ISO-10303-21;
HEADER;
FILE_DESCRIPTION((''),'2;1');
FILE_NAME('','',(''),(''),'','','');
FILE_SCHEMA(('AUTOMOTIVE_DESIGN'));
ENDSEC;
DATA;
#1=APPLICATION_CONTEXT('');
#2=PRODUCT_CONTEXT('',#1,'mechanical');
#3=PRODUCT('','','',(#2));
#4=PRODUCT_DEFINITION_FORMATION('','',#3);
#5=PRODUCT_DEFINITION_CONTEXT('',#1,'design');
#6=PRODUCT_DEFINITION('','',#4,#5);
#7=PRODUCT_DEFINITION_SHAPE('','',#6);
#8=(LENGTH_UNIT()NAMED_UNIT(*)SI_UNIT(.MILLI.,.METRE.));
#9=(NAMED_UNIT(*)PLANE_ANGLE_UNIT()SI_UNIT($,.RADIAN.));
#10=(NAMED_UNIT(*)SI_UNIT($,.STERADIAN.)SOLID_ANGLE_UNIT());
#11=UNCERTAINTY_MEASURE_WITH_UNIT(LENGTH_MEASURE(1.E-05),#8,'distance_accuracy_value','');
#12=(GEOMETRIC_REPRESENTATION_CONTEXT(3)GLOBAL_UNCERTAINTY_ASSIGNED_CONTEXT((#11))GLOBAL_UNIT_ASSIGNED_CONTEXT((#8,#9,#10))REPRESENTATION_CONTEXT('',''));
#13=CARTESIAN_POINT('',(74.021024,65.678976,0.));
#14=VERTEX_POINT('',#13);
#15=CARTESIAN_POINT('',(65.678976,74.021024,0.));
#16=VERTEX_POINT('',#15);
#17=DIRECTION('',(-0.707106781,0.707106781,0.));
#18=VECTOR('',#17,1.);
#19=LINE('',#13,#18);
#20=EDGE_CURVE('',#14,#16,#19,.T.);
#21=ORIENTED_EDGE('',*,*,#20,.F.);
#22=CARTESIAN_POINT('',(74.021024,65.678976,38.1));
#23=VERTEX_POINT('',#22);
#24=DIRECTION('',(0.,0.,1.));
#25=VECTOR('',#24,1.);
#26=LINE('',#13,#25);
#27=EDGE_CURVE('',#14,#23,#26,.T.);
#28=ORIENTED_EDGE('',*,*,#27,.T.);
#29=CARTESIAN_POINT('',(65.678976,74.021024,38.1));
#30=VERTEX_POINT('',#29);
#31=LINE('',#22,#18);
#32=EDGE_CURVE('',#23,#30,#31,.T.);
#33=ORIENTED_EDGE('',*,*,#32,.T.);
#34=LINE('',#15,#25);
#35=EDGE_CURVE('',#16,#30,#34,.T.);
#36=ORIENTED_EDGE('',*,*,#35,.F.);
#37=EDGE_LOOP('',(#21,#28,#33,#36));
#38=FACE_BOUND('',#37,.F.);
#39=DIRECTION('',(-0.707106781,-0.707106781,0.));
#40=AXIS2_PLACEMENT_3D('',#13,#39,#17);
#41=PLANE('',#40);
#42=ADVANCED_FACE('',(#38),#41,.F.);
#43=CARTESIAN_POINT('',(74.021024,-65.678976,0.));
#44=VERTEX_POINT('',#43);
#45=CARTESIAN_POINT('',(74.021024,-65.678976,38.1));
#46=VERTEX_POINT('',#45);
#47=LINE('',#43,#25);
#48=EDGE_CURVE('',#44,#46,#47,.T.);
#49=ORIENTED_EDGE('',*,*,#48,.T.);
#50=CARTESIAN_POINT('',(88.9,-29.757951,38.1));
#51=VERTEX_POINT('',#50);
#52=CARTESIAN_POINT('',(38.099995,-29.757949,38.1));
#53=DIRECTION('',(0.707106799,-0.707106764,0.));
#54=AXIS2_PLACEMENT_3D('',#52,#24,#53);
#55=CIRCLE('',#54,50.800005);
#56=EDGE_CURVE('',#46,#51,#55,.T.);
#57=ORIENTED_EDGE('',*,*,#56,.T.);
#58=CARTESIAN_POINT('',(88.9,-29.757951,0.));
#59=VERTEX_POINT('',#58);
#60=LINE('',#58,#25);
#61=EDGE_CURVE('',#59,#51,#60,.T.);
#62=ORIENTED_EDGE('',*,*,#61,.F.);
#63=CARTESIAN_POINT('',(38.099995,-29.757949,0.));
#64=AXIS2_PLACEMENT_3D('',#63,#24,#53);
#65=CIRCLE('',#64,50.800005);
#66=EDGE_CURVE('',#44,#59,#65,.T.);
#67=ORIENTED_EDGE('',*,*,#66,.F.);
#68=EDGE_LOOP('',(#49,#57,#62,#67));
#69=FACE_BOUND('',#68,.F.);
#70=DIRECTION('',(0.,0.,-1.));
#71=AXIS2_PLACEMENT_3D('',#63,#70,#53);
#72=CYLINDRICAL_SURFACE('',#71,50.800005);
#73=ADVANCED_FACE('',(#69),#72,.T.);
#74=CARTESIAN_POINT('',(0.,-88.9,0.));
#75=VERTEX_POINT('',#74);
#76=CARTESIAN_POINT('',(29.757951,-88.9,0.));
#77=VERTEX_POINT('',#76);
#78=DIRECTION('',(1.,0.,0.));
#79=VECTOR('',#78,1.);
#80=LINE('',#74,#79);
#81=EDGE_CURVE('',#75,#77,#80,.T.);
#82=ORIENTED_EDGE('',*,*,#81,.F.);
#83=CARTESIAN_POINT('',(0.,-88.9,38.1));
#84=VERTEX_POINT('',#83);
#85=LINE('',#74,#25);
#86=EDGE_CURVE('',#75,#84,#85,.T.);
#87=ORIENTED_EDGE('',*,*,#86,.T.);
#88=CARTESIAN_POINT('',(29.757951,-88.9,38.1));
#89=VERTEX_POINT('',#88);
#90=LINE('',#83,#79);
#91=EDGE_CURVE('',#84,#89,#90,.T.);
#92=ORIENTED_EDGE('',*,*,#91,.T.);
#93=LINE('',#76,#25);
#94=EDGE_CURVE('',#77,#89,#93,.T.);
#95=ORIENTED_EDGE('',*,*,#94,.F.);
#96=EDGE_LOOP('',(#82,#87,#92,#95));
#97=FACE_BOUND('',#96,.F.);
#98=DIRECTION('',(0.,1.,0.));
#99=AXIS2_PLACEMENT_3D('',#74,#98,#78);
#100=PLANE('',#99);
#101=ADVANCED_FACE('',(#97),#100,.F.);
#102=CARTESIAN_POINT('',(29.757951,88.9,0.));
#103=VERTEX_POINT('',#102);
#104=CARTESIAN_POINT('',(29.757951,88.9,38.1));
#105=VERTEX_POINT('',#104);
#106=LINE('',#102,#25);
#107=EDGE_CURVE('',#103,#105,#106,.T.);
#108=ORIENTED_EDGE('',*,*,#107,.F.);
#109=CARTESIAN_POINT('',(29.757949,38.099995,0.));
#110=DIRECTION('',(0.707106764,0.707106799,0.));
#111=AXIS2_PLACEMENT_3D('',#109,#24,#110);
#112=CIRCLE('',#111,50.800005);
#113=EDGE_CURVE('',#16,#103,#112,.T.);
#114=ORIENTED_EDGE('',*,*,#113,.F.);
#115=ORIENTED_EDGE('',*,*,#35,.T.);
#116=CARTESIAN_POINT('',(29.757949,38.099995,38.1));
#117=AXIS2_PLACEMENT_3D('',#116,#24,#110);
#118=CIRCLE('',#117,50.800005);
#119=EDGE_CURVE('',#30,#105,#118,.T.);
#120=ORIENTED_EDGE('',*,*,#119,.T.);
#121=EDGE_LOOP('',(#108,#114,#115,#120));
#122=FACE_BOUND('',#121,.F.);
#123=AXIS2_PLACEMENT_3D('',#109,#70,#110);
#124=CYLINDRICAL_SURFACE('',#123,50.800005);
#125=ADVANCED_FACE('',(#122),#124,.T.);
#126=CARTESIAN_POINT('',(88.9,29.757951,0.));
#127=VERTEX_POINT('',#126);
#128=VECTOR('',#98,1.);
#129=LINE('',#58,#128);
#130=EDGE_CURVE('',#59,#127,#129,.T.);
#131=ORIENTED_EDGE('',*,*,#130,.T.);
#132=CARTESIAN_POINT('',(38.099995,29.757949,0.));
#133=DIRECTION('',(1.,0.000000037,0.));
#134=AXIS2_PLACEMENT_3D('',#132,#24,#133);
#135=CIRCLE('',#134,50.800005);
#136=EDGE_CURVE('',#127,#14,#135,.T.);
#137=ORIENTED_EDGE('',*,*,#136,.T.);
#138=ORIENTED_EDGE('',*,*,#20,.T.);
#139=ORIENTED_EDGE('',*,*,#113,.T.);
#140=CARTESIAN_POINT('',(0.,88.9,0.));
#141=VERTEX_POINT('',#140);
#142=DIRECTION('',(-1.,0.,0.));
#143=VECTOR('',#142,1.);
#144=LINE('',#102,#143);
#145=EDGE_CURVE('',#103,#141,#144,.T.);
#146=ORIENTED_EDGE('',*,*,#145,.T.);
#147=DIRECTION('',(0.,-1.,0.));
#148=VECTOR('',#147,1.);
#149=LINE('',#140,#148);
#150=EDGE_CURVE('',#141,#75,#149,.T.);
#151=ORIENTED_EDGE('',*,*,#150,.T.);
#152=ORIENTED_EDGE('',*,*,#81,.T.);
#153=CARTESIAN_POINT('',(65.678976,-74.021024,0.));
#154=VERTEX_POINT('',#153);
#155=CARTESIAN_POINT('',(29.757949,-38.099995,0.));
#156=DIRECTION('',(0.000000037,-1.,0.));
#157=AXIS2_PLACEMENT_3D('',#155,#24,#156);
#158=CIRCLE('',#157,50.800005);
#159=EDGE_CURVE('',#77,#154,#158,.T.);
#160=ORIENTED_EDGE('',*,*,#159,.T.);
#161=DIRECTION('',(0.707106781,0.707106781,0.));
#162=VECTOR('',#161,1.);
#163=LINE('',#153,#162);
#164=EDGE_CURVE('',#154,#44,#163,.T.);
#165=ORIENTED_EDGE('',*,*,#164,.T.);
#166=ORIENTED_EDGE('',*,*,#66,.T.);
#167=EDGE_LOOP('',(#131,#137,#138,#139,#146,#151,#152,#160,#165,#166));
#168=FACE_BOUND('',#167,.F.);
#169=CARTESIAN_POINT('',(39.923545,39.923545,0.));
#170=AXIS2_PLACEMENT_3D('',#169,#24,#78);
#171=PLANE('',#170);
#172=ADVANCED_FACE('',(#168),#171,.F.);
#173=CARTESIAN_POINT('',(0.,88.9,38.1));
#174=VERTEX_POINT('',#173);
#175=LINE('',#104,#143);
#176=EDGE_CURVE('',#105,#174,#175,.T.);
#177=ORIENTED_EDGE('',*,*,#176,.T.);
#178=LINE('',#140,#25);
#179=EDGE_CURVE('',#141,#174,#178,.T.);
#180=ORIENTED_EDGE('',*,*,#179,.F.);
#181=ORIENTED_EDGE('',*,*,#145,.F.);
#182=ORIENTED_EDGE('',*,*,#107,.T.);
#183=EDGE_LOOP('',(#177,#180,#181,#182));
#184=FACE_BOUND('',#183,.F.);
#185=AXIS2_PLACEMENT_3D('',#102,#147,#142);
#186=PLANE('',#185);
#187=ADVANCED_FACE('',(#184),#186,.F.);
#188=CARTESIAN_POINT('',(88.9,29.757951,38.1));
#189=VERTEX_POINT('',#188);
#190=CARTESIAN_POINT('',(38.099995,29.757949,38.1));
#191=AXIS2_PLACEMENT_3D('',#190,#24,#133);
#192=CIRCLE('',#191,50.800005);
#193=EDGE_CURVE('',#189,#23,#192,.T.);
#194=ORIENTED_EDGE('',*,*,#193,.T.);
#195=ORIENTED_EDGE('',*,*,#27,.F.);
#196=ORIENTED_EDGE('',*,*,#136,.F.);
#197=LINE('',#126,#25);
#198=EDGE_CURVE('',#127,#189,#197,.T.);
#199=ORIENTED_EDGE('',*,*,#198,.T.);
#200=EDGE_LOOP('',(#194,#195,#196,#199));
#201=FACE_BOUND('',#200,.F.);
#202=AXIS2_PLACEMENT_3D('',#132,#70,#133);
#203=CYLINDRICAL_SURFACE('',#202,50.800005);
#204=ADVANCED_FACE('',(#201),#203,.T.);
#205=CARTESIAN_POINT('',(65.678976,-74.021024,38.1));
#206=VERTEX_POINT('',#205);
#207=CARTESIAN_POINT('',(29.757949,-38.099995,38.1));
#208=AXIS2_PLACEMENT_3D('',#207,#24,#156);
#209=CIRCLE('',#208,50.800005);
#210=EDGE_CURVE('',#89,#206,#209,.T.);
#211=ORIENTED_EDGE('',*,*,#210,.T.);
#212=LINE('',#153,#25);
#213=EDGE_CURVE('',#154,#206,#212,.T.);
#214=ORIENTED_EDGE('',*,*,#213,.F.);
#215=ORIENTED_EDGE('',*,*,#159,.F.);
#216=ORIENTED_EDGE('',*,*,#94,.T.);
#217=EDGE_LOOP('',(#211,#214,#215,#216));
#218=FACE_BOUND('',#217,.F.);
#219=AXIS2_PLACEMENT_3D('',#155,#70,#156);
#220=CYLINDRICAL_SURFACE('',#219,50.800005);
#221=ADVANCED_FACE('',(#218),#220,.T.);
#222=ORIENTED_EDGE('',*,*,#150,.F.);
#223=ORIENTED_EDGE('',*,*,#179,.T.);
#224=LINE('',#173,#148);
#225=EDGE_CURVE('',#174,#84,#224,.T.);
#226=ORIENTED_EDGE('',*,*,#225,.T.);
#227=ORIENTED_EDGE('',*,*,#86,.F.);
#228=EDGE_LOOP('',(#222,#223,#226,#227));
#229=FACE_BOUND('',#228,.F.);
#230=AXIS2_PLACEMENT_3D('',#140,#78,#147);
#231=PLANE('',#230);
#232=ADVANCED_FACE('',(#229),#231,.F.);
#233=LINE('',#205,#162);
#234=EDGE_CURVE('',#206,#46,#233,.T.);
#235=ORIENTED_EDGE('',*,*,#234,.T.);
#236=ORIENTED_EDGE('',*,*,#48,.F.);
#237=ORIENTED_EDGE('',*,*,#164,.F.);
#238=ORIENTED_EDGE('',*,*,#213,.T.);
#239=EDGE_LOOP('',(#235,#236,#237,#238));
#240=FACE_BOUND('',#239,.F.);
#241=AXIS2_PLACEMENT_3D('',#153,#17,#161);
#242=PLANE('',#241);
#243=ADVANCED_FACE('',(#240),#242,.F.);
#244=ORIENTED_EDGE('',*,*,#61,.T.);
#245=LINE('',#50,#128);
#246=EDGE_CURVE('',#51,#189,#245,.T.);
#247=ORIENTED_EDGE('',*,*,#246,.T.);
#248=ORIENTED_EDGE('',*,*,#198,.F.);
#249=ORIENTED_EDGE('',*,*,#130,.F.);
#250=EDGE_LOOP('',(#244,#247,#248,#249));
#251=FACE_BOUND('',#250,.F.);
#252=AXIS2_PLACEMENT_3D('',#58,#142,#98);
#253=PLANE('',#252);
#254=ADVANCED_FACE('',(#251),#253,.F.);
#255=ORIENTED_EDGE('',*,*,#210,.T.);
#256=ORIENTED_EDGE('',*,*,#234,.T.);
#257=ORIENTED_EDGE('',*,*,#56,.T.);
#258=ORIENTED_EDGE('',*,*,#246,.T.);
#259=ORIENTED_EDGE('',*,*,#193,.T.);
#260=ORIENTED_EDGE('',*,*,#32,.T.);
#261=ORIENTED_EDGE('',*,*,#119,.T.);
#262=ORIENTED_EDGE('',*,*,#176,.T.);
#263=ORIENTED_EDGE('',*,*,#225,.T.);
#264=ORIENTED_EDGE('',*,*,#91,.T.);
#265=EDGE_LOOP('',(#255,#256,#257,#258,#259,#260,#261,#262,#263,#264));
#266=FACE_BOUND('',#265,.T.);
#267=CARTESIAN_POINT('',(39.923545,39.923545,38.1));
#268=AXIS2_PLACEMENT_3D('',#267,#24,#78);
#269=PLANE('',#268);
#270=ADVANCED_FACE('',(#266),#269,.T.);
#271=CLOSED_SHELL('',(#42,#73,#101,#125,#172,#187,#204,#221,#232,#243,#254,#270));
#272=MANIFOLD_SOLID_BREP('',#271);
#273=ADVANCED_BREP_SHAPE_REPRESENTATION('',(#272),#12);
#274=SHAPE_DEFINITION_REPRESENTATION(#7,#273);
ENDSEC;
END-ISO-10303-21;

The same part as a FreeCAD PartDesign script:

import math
import FreeCAD as App
import Part
import Sketcher
from FreeCAD import Vector
Q = App.Units.Quantity

doc = App.newDocument("Part")
body = doc.addObject("PartDesign::Body", "Body")

sketch1 = body.newObject("Sketcher::SketchObject", "Sketch")
sketch1.AttachmentSupport = (doc.getObject("XY_Plane"), [""])
sketch1.MapMode = "FlatFace"
sketch1.addGeometry([
    Part.LineSegment(Vector(0, 89, 0), Vector(0, -89, 0)),
    Part.LineSegment(Vector(0, -89, 0), Vector(30, -89, 0)),
    Part.ArcOfCircle(Part.Circle(Vector(30, -38, 0), Vector(0, 0, 1), 51), math.radians(-90), math.radians(-45)),
    Part.LineSegment(Vector(66, -74, 0), Vector(74, -66, 0)),
    Part.ArcOfCircle(Part.Circle(Vector(38, -30, 0), Vector(0, 0, 1), 51), math.radians(-45), math.radians(0)),
    Part.LineSegment(Vector(89, -30, 0), Vector(89, 30, 0)),
    Part.ArcOfCircle(Part.Circle(Vector(38, 30, 0), Vector(0, 0, 1), 51), math.radians(0), math.radians(45)),
    Part.LineSegment(Vector(74, 66, 0), Vector(66, 74, 0)),
    Part.ArcOfCircle(Part.Circle(Vector(30, 38, 0), Vector(0, 0, 1), 51), math.radians(45), math.radians(90)),
    Part.LineSegment(Vector(30, 89, 0), Vector(0, 89, 0)),
], False)
sketch1.addConstraint([
    Sketcher.Constraint("Coincident", 0, 2, 1, 1),
    Sketcher.Constraint("Tangent", 1, 2, 2, 1),
    Sketcher.Constraint("Tangent", 2, 2, 3, 1),
    Sketcher.Constraint("Tangent", 3, 2, 4, 1),
    Sketcher.Constraint("Tangent", 4, 2, 5, 1),
    Sketcher.Constraint("Tangent", 5, 2, 6, 1),
    Sketcher.Constraint("Tangent", 6, 2, 7, 1),
    Sketcher.Constraint("Tangent", 7, 2, 8, 1),
    Sketcher.Constraint("Tangent", 8, 2, 9, 1),
    Sketcher.Constraint("Coincident", 9, 2, 0, 1),
    Sketcher.Constraint("Vertical", 0),
    Sketcher.Constraint("Horizontal", 1),
    Sketcher.Constraint("Vertical", 5),
    Sketcher.Constraint("Horizontal", 9),
    Sketcher.Constraint("Equal", 2, 4),
    Sketcher.Constraint("Equal", 4, 6),
    Sketcher.Constraint("Equal", 6, 8),
    Sketcher.Constraint("Symmetric", 0, 2, 9, 2, -1, 1),
    Sketcher.Constraint("Symmetric", 3, 2, 6, 2, -1),
    Sketcher.Constraint("Perpendicular", 3, 7),
    Sketcher.Constraint("Radius", 2, Q("2.0000002 in")),
    Sketcher.Constraint("DistanceY", 0, 2, 0, 1, Q("7 in")),
    Sketcher.Constraint("DistanceX", -1, 1, 4, 3, Q("1.4999998 in")),
    Sketcher.Constraint("DistanceY", 5, 1, 5, 2, Q("59.515902 mm")),
])
pad1 = body.newObject("PartDesign::Pad", "Pad")
pad1.Profile = sketch1
pad1.Length = Q("1.5 in")

doc.recompute()
